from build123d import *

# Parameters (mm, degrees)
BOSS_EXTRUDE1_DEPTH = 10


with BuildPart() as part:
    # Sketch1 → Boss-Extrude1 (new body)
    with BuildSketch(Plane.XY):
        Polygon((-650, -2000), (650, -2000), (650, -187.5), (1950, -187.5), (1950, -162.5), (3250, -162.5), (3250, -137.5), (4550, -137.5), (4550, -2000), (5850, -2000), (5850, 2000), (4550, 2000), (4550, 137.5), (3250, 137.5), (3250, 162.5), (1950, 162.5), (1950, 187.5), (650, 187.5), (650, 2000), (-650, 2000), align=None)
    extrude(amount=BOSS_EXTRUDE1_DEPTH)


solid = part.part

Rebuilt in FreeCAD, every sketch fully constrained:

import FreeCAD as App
import Part
import Sketcher
from FreeCAD import Vector
Q = App.Units.Quantity


def add_polygon(sketch, points):
    """Adds a closed chain of lines whose ends are joined by coincident constraints."""
    first, n = sketch.GeometryCount, len(points)
    for a, b in zip(points, points[1:] + points[:1]):
        sketch.addGeometry(Part.LineSegment(App.Vector(*a, 0), App.Vector(*b, 0)), False)
    for i in range(n):
        sketch.addConstraint(Sketcher.Constraint("Coincident", first + i, 2, first + (i + 1) % n, 1))

doc = App.newDocument("Part")
body = doc.addObject("PartDesign::Body", "Body")

sketch1 = body.newObject("Sketcher::SketchObject", "Sketch")
sketch1.AttachmentSupport = (doc.getObject("XY_Plane"), [""])
sketch1.MapMode = "FlatFace"
add_polygon(sketch1, [(-650, -2000), (650, -2000), (650, -187.5), (1950, -187.5), (1950, -162.5), (3250, -162.5), (3250, -137.5), (4550, -137.5), (4550, -2000), (5850, -2000), (5850, 2000), (4550, 2000), (4550, 137.5), (3250, 137.5), (3250, 162.5), (1950, 162.5), (1950, 187.5), (650, 187.5), (650, 2000), (-650, 2000)])
sketch1.addConstraint(Sketcher.Constraint("Horizontal", 0))
sketch1.addConstraint(Sketcher.Constraint("Vertical", 1))
sketch1.addConstraint(Sketcher.Constraint("Horizontal", 2))
sketch1.addConstraint(Sketcher.Constraint("Vertical", 3))
sketch1.addConstraint(Sketcher.Constraint("Horizontal", 4))
sketch1.addConstraint(Sketcher.Constraint("Vertical", 5))
sketch1.addConstraint(Sketcher.Constraint("Horizontal", 6))
sketch1.addConstraint(Sketcher.Constraint("Vertical", 7))
sketch1.addConstraint(Sketcher.Constraint("Horizontal", 8))
sketch1.addConstraint(Sketcher.Constraint("Vertical", 9))
sketch1.addConstraint(Sketcher.Constraint("Horizontal", 10))
sketch1.addConstraint(Sketcher.Constraint("Vertical", 11))
sketch1.addConstraint(Sketcher.Constraint("Horizontal", 12))
sketch1.addConstraint(Sketcher.Constraint("Vertical", 13))
sketch1.addConstraint(Sketcher.Constraint("Horizontal", 14))
sketch1.addConstraint(Sketcher.Constraint("Vertical", 15))
sketch1.addConstraint(Sketcher.Constraint("Horizontal", 16))
sketch1.addConstraint(Sketcher.Constraint("Vertical", 17))
sketch1.addConstraint(Sketcher.Constraint("Horizontal", 18))
sketch1.addConstraint(Sketcher.Constraint("Vertical", 19))
sketch1.addConstraint(Sketcher.Constraint("Symmetric", 0, 2, 18, 2, -1, 1))
sketch1.addConstraint(Sketcher.Constraint("Symmetric", 7, 2, 10, 2, -1))
sketch1.addConstraint(Sketcher.Constraint("Symmetric", 5, 2, 12, 2, -1))
sketch1.addConstraint(Sketcher.Constraint("Symmetric", 3, 2, 14, 2, -1))
sketch1.addConstraint(Sketcher.Constraint("Symmetric", 1, 2, 16, 2, -1))
sketch1.addConstraint(Sketcher.Constraint("Horizontal", 0, 2, 7, 2))
sketch1.addConstraint(Sketcher.Constraint("Equal", 0, 2))
sketch1.addConstraint(Sketcher.Constraint("Equal", 2, 4))
sketch1.addConstraint(Sketcher.Constraint("Equal", 4, 6))
sketch1.addConstraint(Sketcher.Constraint("Equal", 6, 8))
sketch1.addConstraint(Sketcher.Constraint("Equal", 3, 5))
sketch1.addConstraint(Sketcher.Constraint("DistanceX", 0, 1, 0, 2, Q("1300 mm")))
sketch1.addConstraint(Sketcher.Constraint("DistanceY", 3, 1, 3, 2, Q("25 mm")))
sketch1.addConstraint(Sketcher.Constraint("DistanceY", 9, 1, 9, 2, Q("4000 mm")))
sketch1.addConstraint(Sketcher.Constraint("DistanceY", 1, 1, 1, 2, Q("1812.5 mm")))
pad1 = body.newObject("PartDesign::Pad", "Pad")
pad1.Profile = sketch1
pad1.Length = 10

doc.recompute()
